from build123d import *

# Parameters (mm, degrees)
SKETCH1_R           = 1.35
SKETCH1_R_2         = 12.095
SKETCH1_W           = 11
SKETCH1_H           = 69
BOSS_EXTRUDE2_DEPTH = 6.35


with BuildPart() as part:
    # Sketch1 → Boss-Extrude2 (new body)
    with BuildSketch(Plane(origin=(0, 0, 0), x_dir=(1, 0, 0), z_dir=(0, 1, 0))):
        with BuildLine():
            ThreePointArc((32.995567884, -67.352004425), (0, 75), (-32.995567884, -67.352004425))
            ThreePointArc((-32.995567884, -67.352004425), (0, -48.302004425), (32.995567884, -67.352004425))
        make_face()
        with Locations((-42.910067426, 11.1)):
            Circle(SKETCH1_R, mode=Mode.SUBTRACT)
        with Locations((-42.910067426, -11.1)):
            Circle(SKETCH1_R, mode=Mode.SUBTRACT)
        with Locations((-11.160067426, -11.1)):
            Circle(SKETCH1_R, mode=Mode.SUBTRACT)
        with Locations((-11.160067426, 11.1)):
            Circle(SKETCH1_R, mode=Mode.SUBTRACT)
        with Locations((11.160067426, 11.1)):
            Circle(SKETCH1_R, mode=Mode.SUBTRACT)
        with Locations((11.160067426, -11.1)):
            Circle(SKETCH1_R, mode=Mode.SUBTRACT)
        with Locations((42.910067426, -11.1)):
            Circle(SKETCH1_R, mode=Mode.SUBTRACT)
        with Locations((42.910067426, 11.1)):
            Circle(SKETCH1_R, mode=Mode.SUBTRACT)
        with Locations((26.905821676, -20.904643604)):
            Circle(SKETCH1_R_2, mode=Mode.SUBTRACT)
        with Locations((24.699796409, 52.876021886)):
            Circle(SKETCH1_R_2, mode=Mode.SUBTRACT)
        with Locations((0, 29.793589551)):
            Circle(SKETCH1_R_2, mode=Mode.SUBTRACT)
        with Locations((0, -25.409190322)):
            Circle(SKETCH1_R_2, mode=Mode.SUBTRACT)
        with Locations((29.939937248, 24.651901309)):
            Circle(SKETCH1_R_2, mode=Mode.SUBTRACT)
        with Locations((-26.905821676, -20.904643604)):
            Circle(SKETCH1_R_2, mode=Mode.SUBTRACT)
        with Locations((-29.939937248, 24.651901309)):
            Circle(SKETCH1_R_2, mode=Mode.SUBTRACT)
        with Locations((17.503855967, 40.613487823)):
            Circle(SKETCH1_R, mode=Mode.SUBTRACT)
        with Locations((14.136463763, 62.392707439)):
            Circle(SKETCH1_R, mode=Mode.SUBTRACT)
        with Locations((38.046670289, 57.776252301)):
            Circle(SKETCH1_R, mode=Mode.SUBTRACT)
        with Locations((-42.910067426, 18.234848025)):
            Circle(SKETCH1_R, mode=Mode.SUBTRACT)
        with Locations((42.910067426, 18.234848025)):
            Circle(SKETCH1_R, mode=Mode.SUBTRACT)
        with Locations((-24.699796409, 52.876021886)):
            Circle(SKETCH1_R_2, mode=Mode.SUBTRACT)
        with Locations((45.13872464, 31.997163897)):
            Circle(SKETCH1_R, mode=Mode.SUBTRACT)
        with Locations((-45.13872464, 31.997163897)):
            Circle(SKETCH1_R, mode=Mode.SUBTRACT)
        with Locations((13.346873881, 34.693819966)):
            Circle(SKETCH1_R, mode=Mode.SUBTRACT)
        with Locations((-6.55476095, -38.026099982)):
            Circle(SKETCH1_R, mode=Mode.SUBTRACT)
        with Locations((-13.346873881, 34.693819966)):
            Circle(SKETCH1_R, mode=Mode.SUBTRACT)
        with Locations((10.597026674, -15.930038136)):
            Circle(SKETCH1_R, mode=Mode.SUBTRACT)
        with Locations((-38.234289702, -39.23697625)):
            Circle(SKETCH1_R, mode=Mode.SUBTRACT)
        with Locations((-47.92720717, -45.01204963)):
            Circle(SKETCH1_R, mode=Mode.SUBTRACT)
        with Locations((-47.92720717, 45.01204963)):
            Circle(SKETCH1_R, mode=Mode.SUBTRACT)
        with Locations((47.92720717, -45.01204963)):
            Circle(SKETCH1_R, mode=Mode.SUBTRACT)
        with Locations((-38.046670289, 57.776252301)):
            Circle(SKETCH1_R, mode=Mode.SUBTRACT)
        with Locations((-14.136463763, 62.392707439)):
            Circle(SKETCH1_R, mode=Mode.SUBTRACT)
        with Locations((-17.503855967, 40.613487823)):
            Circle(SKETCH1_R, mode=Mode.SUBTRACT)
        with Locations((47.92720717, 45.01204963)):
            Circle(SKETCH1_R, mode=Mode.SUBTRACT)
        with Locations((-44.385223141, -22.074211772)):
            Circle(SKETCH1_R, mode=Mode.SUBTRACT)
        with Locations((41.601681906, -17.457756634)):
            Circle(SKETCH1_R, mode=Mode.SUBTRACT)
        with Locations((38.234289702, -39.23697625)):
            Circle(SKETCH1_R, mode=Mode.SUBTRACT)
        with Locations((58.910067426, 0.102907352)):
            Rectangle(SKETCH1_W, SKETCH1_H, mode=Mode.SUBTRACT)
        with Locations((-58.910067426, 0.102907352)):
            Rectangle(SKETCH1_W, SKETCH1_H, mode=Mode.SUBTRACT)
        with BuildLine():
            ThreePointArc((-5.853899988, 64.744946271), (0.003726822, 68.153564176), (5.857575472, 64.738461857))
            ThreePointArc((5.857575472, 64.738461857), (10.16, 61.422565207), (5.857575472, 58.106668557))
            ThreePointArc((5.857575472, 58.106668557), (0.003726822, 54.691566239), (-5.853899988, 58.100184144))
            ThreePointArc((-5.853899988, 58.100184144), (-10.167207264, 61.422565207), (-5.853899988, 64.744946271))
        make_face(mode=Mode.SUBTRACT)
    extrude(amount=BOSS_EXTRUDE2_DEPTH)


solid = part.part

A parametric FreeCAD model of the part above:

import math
import FreeCAD as App
import Part
import Sketcher
from FreeCAD import Vector

doc = App.newDocument("Part")
body = doc.addObject("PartDesign::Body", "Body")

# Sketch on XZ plane
sketch1 = body.newObject("Sketcher::SketchObject", "Sketch")
sketch1.AttachmentSupport = (doc.getObject("XZ_Plane"), [""])
sketch1.MapMode = "FlatFace"
sketch1.addGeometry([
    Part.ArcOfCircle(Part.Circle(Vector(0, 0, 0), Vector(0, 0, 1), 75), math.radians(116), math.radians(424)),  # 0
    Part.ArcOfCircle(Part.Circle(Vector(0, 86.4, 0), Vector(0, 0, 1), 38.1), math.radians(-150), math.radians(-30)),  # 1
    Part.Circle(Vector(-47.9, 45, 0), Vector(0, 0, 1), 1.4),  # 2
    Part.Circle(Vector(-38.2, 39.2, 0), Vector(0, 0, 1), 1.4),  # 3
    Part.Circle(Vector(-44.4, 22.1, 0), Vector(0, 0, 1), 1.4),  # 4
    Part.Circle(Vector(-6.6, 38, 0), Vector(0, 0, 1), 1.4),  # 5
    Part.Circle(Vector(-26.9, 20.9, 0), Vector(0, 0, 1), 12.1),  # 6
    Part.Circle(Vector(-42.9, 11.1, 0), Vector(0, 0, 1), 1.4),  # 7
    Part.LineSegment(Vector(-53.4, 34.4, 0), Vector(-64.4, 34.4, 0)),  # 8
    Part.LineSegment(Vector(-64.4, 34.4, 0), Vector(-64.4, -34.6, 0)),  # 9
    Part.LineSegment(Vector(-64.4, -34.6, 0), Vector(-53.4, -34.6, 0)),  # 10
    Part.LineSegment(Vector(-53.4, -34.6, 0), Vector(-53.4, 34.4, 0)),  # 11
    Part.Circle(Vector(-11.2, 11.1, 0), Vector(0, 0, 1), 1.4),  # 12
    Part.Circle(Vector(0, 25.4, 0), Vector(0, 0, 1), 12.1),  # 13
    Part.Circle(Vector(26.9, 20.9, 0), Vector(0, 0, 1), 12.1),  # 14
    Part.Circle(Vector(38.2, 39.2, 0), Vector(0, 0, 1), 1.4),  # 15
    Part.Circle(Vector(47.9, 45, 0), Vector(0, 0, 1), 1.4),  # 16
    Part.Circle(Vector(10.6, 15.9, 0), Vector(0, 0, 1), 1.4),  # 17
    Part.Circle(Vector(11.2, 11.1, 0), Vector(0, 0, 1), 1.4),  # 18
    Part.Circle(Vector(41.6, 17.5, 0), Vector(0, 0, 1), 1.4),  # 19
    Part.Circle(Vector(42.9, 11.1, 0), Vector(0, 0, 1), 1.4),  # 20
    Part.LineSegment(Vector(64.4, 34.4, 0), Vector(53.4, 34.4, 0)),  # 21
    Part.LineSegment(Vector(53.4, 34.4, 0), Vector(53.4, -34.6, 0)),  # 22
    Part.LineSegment(Vector(53.4, -34.6, 0), Vector(64.4, -34.6, 0)),  # 23
    Part.LineSegment(Vector(64.4, -34.6, 0), Vector(64.4, 34.4, 0)),  # 24
    Part.Circle(Vector(-42.9, -11.1, 0), Vector(0, 0, 1), 1.4),  # 25
    Part.Circle(Vector(-42.9, -18.2, 0), Vector(0, 0, 1), 1.4),  # 26
    Part.Circle(Vector(-45.1, -32, 0), Vector(0, 0, 1), 1.4),  # 27
    Part.Circle(Vector(-29.9, -24.7, 0), Vector(0, 0, 1), 12.1),  # 28
    Part.Circle(Vector(-11.2, -11.1, 0), Vector(0, 0, 1), 1.4),  # 29
    Part.Circle(Vector(-13.3, -34.7, 0), Vector(0, 0, 1), 1.4),  # 30
    Part.Circle(Vector(-47.9, -45, 0), Vector(0, 0, 1), 1.4),  # 31
    Part.Circle(Vector(-38, -57.8, 0), Vector(0, 0, 1), 1.4),  # 32
    Part.Circle(Vector(-17.5, -40.6, 0), Vector(0, 0, 1), 1.4),  # 33
    Part.Circle(Vector(-24.7, -52.9, 0), Vector(0, 0, 1), 12.1),  # 34
    Part.Circle(Vector(-14.1, -62.4, 0), Vector(0, 0, 1), 1.4),  # 35
    Part.ArcOfCircle(Part.Circle(Vector(-6.7, -61.4, 0), Vector(0, 0, 1), 3.4), math.radians(75), math.radians(285)),  # 36
    Part.ArcOfCircle(Part.Circle(Vector(0, -61.4, 0), Vector(0, 0, 1), 6.7), math.radians(-150), math.radians(-30)),  # 37
    Part.ArcOfCircle(Part.Circle(Vector(6.7, -61.4, 0), Vector(0, 0, 1), 3.4), math.radians(-105), math.radians(105)),  # 38
    Part.ArcOfCircle(Part.Circle(Vector(0, -61.4, 0), Vector(0, 0, 1), 6.7), math.radians(30), math.radians(150)),  # 39
    Part.Circle(Vector(11.2, -11.1, 0), Vector(0, 0, 1), 1.4),  # 40
    Part.Circle(Vector(29.9, -24.7, 0), Vector(0, 0, 1), 12.1),  # 41
    Part.Circle(Vector(0, -29.8, 0), Vector(0, 0, 1), 12.1),  # 42
    Part.Circle(Vector(13.3, -34.7, 0), Vector(0, 0, 1), 1.4),  # 43
    Part.Circle(Vector(42.9, -11.1, 0), Vector(0, 0, 1), 1.4),  # 44
    Part.Circle(Vector(42.9, -18.2, 0), Vector(0, 0, 1), 1.4),  # 45
    Part.Circle(Vector(45.1, -32, 0), Vector(0, 0, 1), 1.4),  # 46
    Part.Circle(Vector(17.5, -40.6, 0), Vector(0, 0, 1), 1.4),  # 47
    Part.Circle(Vector(24.7, -52.9, 0), Vector(0, 0, 1), 12.1),  # 48
    Part.Circle(Vector(14.1, -62.4, 0), Vector(0, 0, 1), 1.4),  # 49
    Part.Circle(Vector(47.9, -45, 0), Vector(0, 0, 1), 1.4),  # 50
    Part.Circle(Vector(38, -57.8, 0), Vector(0, 0, 1), 1.4),  # 51
], False)
sketch1.addConstraint([
    Sketcher.Constraint("Coincident", 0, 1, 1, 1),
    Sketcher.Constraint("Coincident", 1, 2, 0, 2),
    Sketcher.Constraint("Coincident", 8, 2, 9, 1),
    Sketcher.Constraint("Coincident", 9, 2, 10, 1),
    Sketcher.Constraint("Coincident", 10, 2, 11, 1),
    Sketcher.Constraint("Coincident", 11, 2, 8, 1),
    Sketcher.Constraint("Coincident", 21, 2, 22, 1),
    Sketcher.Constraint("Coincident", 22, 2, 23, 1),
    Sketcher.Constraint("Coincident", 23, 2, 24, 1),
    Sketcher.Constraint("Coincident", 24, 2, 21, 1),
    Sketcher.Constraint("Coincident", 36, 2, 37, 1),
    Sketcher.Constraint("Coincident", 37, 2, 38, 1),
    Sketcher.Constraint("Coincident", 38, 2, 39, 1),
    Sketcher.Constraint("Coincident", 39, 2, 36, 1),
    Sketcher.Constraint("Horizontal", 8),
    Sketcher.Constraint("Vertical", 9),
    Sketcher.Constraint("Horizontal", 10),
    Sketcher.Constraint("Vertical", 11),
    Sketcher.Constraint("Horizontal", 21),
    Sketcher.Constraint("Vertical", 22),
    Sketcher.Constraint("Horizontal", 23),
    Sketcher.Constraint("Vertical", 24),
    Sketcher.Constraint("Coincident", 0, 3, -1, 1),
    Sketcher.Constraint("Coincident", 39, 3, 37, 3),
    Sketcher.Constraint("Equal", 2, 3),
    Sketcher.Constraint("Equal", 3, 4),
    Sketcher.Constraint("Equal", 4, 5),
    Sketcher.Constraint("Equal", 5, 7),
    Sketcher.Constraint("Equal", 7, 12),
    Sketcher.Constraint("Equal", 6, 13),
    Sketcher.Constraint("Equal", 13, 14),
    Sketcher.Constraint("Equal", 12, 15),
    Sketcher.Constraint("Equal", 15, 16),
    Sketcher.Constraint("Equal", 16, 17),
    Sketcher.Constraint("Equal", 17, 18),
    Sketcher.Constraint("Equal", 18, 19),
    Sketcher.Constraint("Equal", 19, 20),
    Sketcher.Constraint("Equal", 20, 25),
    Sketcher.Constraint("Equal", 25, 26),
    Sketcher.Constraint("Equal", 26, 27),
    Sketcher.Constraint("Equal", 14, 28),
    Sketcher.Constraint("Equal", 27, 29),
    Sketcher.Constraint("Equal", 29, 30),
    Sketcher.Constraint("Equal", 30, 31),
    Sketcher.Constraint("Equal", 31, 32),
    Sketcher.Constraint("Equal", 32, 33),
    Sketcher.Constraint("Equal", 28, 34),
    Sketcher.Constraint("Equal", 33, 35),
    Sketcher.Constraint("Equal", 37, 39),
    Sketcher.Constraint("Equal", 35, 40),
    Sketcher.Constraint("Equal", 34, 41),
    Sketcher.Constraint("Equal", 41, 42),
    Sketcher.Constraint("Equal", 40, 43),
    Sketcher.Constraint("Equal", 43, 44),
    Sketcher.Constraint("Equal", 44, 45),
    Sketcher.Constraint("Equal", 45, 46),
    Sketcher.Constraint("Equal", 46, 47),
    Sketcher.Constraint("Equal", 42, 48),
    Sketcher.Constraint("Equal", 47, 49),
    Sketcher.Constraint("Equal", 49, 50),
    Sketcher.Constraint("Equal", 50, 51),
    Sketcher.Constraint("Symmetric", 20, 3, 25, 3, -1, 1),
    Sketcher.Constraint("Symmetric", 18, 3, 29, 3, -1, 1),
    Sketcher.Constraint("Symmetric", 16, 3, 31, 3, -1, 1),
    Sketcher.Constraint("Symmetric", 12, 3, 40, 3, -1, 1),
    Sketcher.Constraint("Symmetric", 7, 3, 44, 3, -1, 1),
    Sketcher.Constraint("Symmetric", 2, 3, 50, 3, -1, 1),
    Sketcher.Constraint("Symmetric", 6, 3, 14, 3, -2),
    Sketcher.Constraint("Symmetric", 3, 3, 15, 3, -2),
    Sketcher.Constraint("Symmetric", 2, 3, 16, 3, -2),
    Sketcher.Constraint("Symmetric", 12, 3, 18, 3, -2),
    Sketcher.Constraint("Symmetric", 7, 3, 20, 3, -2),
    Sketcher.Constraint("Symmetric", 36, 3, 38, 3, -2),
    Sketcher.Constraint("Symmetric", 28, 3, 41, 3, -2),
    Sketcher.Constraint("Symmetric", 30, 3, 43, 3, -2),
    Sketcher.Constraint("Symmetric", 26, 3, 45, 3, -2),
    Sketcher.Constraint("Symmetric", 27, 3, 46, 3, -2),
    Sketcher.Constraint("Symmetric", 33, 3, 47, 3, -2),
    Sketcher.Constraint("Symmetric", 34, 3, 48, 3, -2),
    Sketcher.Constraint("Symmetric", 35, 3, 49, 3, -2),
    Sketcher.Constraint("Symmetric", 32, 3, 51, 3, -2),
    Sketcher.Constraint("Symmetric", 11, 2, 21, 2, -2),
    Sketcher.Constraint("Symmetric", 9, 2, 23, 2, -2),
    Sketcher.Constraint("PointOnObject", 1, 3, -2),
    Sketcher.Constraint("PointOnObject", 13, 3, -2),
    Sketcher.Constraint("PointOnObject", 37, 3, -2),
    Sketcher.Constraint("PointOnObject", 42, 3, -2),
    Sketcher.Constraint("Horizontal", 7, 3, 12, 3),
    Sketcher.Constraint("Horizontal", 36, 3, 37, 3),
    Sketcher.Constraint("Vertical", 25, 3, 26, 3),
    Sketcher.Constraint("Radius", 0, 75.0),
    Sketcher.Constraint("Diameter", 2, 2.7),
    Sketcher.Constraint("Radius", 1, 38.1),
    Sketcher.Constraint("Diameter", 6, 24.19),
    Sketcher.Constraint("DistanceX", 8, 2, 8, 1, 11.0),
    Sketcher.Constraint("DistanceY", 9, 2, 9, 1, 69.0),
    Sketcher.Constraint("Radius", 37, 6.731),
    Sketcher.Constraint("Radius", 38, 3.429),
    Sketcher.Constraint("DistanceY", -1, 1, 7, 3, 11.1),
    Sketcher.Constraint("DistanceX", 8, 2, 7, 3, 21.5),
    Sketcher.Constraint("DistanceX", 7, 3, 12, 3, 31.75),
    Sketcher.Constraint("DistanceY", 0, 1, 1, 3, 19.05),
    Sketcher.Constraint("DistanceX", 36, 3, -1, 1, 6.731),
    Sketcher.Constraint("Radius", 36, 3.436207),
    Sketcher.Constraint("DistanceY", -1, 1, 5, 3, 38.0261),
    Sketcher.Constraint("DistanceY", 28, 3, -1, 1, 24.651901),
    Sketcher.Constraint("DistanceX", 4, 3, 6, 3, 17.479401),
    Sketcher.Constraint("DistanceX", 27, 3, 4, 3, 0.753501),
    Sketcher.Constraint("DistanceY", 31, 3, 26, 3, 26.777202),
    Sketcher.Constraint("DistanceY", 34, 3, 30, 3, 18.182202),
    Sketcher.Constraint("DistanceY", 33, 3, 42, 3, 10.819898),
    Sketcher.Constraint("DistanceY", -1, 1, 2, 3, 45.01205),
    Sketcher.Constraint("DistanceX", 3, 3, -1, 1, 38.23429),
    Sketcher.Constraint("DistanceY", -1, 1, 4, 3, 22.074212),
    Sketcher.Constraint("DistanceX", 5, 3, -1, 1, 6.554761),
    Sketcher.Constraint("DistanceX", 6, 3, -1, 1, 26.905822),
    Sketcher.Constraint("DistanceY", -1, 1, 13, 3, 25.40919),
    Sketcher.Constraint("DistanceY", -1, 1, 17, 3, 15.930038),
    Sketcher.Constraint("DistanceX", -1, 1, 19, 3, 41.601682),
    Sketcher.Constraint("DistanceY", 30, 3, -1, 1, 34.69382),
    Sketcher.Constraint("DistanceX", 32, 3, -1, 1, 38.04667),
    Sketcher.Constraint("DistanceY", 42, 3, -1, 1, 29.79359),
    Sketcher.Constraint("DistanceY", 37, 2, -1, 1, 64.738462),
    Sketcher.Constraint("DistanceY", 3, 3, 1, 3, 47.165028),
    Sketcher.Constraint("DistanceY", 6, 3, 4, 3, 1.169568),
    Sketcher.Constraint("DistanceX", 2, 3, 7, 3, 5.01714),
    Sketcher.Constraint("DistanceX", 12, 3, 14, 3, 38.065889),
    Sketcher.Constraint("DistanceX", 17, 3, 18, 3, 0.563041),
    Sketcher.Constraint("DistanceY", 19, 3, 15, 3, 21.77922),
    Sketcher.Constraint("DistanceX", 26, 3, 28, 3, 12.97013),
    Sketcher.Constraint("DistanceX", 27, 3, 30, 3, 31.791851),
    Sketcher.Constraint("DistanceY", 32, 3, 27, 3, 25.779088),
    Sketcher.Constraint("DistanceY", 32, 3, 28, 3, 33.124351),
    Sketcher.Constraint("DistanceX", 28, 3, 33, 3, 12.436081),
    Sketcher.Constraint("DistanceX", 34, 3, 33, 3, 7.19594),
    Sketcher.Constraint("DistanceY", 35, 3, 33, 3, 21.77922),
    Sketcher.Constraint("DistanceX", 35, 3, 30, 3, 0.78959),
    Sketcher.Constraint("DistanceY", 4, 3, 8, 2, 12.322881),
])
pad1 = body.newObject("PartDesign::Pad", "Pad")
pad1.Profile = sketch1
pad1.Length = 6.35
pad1.Reversed = True

doc.recompute()
